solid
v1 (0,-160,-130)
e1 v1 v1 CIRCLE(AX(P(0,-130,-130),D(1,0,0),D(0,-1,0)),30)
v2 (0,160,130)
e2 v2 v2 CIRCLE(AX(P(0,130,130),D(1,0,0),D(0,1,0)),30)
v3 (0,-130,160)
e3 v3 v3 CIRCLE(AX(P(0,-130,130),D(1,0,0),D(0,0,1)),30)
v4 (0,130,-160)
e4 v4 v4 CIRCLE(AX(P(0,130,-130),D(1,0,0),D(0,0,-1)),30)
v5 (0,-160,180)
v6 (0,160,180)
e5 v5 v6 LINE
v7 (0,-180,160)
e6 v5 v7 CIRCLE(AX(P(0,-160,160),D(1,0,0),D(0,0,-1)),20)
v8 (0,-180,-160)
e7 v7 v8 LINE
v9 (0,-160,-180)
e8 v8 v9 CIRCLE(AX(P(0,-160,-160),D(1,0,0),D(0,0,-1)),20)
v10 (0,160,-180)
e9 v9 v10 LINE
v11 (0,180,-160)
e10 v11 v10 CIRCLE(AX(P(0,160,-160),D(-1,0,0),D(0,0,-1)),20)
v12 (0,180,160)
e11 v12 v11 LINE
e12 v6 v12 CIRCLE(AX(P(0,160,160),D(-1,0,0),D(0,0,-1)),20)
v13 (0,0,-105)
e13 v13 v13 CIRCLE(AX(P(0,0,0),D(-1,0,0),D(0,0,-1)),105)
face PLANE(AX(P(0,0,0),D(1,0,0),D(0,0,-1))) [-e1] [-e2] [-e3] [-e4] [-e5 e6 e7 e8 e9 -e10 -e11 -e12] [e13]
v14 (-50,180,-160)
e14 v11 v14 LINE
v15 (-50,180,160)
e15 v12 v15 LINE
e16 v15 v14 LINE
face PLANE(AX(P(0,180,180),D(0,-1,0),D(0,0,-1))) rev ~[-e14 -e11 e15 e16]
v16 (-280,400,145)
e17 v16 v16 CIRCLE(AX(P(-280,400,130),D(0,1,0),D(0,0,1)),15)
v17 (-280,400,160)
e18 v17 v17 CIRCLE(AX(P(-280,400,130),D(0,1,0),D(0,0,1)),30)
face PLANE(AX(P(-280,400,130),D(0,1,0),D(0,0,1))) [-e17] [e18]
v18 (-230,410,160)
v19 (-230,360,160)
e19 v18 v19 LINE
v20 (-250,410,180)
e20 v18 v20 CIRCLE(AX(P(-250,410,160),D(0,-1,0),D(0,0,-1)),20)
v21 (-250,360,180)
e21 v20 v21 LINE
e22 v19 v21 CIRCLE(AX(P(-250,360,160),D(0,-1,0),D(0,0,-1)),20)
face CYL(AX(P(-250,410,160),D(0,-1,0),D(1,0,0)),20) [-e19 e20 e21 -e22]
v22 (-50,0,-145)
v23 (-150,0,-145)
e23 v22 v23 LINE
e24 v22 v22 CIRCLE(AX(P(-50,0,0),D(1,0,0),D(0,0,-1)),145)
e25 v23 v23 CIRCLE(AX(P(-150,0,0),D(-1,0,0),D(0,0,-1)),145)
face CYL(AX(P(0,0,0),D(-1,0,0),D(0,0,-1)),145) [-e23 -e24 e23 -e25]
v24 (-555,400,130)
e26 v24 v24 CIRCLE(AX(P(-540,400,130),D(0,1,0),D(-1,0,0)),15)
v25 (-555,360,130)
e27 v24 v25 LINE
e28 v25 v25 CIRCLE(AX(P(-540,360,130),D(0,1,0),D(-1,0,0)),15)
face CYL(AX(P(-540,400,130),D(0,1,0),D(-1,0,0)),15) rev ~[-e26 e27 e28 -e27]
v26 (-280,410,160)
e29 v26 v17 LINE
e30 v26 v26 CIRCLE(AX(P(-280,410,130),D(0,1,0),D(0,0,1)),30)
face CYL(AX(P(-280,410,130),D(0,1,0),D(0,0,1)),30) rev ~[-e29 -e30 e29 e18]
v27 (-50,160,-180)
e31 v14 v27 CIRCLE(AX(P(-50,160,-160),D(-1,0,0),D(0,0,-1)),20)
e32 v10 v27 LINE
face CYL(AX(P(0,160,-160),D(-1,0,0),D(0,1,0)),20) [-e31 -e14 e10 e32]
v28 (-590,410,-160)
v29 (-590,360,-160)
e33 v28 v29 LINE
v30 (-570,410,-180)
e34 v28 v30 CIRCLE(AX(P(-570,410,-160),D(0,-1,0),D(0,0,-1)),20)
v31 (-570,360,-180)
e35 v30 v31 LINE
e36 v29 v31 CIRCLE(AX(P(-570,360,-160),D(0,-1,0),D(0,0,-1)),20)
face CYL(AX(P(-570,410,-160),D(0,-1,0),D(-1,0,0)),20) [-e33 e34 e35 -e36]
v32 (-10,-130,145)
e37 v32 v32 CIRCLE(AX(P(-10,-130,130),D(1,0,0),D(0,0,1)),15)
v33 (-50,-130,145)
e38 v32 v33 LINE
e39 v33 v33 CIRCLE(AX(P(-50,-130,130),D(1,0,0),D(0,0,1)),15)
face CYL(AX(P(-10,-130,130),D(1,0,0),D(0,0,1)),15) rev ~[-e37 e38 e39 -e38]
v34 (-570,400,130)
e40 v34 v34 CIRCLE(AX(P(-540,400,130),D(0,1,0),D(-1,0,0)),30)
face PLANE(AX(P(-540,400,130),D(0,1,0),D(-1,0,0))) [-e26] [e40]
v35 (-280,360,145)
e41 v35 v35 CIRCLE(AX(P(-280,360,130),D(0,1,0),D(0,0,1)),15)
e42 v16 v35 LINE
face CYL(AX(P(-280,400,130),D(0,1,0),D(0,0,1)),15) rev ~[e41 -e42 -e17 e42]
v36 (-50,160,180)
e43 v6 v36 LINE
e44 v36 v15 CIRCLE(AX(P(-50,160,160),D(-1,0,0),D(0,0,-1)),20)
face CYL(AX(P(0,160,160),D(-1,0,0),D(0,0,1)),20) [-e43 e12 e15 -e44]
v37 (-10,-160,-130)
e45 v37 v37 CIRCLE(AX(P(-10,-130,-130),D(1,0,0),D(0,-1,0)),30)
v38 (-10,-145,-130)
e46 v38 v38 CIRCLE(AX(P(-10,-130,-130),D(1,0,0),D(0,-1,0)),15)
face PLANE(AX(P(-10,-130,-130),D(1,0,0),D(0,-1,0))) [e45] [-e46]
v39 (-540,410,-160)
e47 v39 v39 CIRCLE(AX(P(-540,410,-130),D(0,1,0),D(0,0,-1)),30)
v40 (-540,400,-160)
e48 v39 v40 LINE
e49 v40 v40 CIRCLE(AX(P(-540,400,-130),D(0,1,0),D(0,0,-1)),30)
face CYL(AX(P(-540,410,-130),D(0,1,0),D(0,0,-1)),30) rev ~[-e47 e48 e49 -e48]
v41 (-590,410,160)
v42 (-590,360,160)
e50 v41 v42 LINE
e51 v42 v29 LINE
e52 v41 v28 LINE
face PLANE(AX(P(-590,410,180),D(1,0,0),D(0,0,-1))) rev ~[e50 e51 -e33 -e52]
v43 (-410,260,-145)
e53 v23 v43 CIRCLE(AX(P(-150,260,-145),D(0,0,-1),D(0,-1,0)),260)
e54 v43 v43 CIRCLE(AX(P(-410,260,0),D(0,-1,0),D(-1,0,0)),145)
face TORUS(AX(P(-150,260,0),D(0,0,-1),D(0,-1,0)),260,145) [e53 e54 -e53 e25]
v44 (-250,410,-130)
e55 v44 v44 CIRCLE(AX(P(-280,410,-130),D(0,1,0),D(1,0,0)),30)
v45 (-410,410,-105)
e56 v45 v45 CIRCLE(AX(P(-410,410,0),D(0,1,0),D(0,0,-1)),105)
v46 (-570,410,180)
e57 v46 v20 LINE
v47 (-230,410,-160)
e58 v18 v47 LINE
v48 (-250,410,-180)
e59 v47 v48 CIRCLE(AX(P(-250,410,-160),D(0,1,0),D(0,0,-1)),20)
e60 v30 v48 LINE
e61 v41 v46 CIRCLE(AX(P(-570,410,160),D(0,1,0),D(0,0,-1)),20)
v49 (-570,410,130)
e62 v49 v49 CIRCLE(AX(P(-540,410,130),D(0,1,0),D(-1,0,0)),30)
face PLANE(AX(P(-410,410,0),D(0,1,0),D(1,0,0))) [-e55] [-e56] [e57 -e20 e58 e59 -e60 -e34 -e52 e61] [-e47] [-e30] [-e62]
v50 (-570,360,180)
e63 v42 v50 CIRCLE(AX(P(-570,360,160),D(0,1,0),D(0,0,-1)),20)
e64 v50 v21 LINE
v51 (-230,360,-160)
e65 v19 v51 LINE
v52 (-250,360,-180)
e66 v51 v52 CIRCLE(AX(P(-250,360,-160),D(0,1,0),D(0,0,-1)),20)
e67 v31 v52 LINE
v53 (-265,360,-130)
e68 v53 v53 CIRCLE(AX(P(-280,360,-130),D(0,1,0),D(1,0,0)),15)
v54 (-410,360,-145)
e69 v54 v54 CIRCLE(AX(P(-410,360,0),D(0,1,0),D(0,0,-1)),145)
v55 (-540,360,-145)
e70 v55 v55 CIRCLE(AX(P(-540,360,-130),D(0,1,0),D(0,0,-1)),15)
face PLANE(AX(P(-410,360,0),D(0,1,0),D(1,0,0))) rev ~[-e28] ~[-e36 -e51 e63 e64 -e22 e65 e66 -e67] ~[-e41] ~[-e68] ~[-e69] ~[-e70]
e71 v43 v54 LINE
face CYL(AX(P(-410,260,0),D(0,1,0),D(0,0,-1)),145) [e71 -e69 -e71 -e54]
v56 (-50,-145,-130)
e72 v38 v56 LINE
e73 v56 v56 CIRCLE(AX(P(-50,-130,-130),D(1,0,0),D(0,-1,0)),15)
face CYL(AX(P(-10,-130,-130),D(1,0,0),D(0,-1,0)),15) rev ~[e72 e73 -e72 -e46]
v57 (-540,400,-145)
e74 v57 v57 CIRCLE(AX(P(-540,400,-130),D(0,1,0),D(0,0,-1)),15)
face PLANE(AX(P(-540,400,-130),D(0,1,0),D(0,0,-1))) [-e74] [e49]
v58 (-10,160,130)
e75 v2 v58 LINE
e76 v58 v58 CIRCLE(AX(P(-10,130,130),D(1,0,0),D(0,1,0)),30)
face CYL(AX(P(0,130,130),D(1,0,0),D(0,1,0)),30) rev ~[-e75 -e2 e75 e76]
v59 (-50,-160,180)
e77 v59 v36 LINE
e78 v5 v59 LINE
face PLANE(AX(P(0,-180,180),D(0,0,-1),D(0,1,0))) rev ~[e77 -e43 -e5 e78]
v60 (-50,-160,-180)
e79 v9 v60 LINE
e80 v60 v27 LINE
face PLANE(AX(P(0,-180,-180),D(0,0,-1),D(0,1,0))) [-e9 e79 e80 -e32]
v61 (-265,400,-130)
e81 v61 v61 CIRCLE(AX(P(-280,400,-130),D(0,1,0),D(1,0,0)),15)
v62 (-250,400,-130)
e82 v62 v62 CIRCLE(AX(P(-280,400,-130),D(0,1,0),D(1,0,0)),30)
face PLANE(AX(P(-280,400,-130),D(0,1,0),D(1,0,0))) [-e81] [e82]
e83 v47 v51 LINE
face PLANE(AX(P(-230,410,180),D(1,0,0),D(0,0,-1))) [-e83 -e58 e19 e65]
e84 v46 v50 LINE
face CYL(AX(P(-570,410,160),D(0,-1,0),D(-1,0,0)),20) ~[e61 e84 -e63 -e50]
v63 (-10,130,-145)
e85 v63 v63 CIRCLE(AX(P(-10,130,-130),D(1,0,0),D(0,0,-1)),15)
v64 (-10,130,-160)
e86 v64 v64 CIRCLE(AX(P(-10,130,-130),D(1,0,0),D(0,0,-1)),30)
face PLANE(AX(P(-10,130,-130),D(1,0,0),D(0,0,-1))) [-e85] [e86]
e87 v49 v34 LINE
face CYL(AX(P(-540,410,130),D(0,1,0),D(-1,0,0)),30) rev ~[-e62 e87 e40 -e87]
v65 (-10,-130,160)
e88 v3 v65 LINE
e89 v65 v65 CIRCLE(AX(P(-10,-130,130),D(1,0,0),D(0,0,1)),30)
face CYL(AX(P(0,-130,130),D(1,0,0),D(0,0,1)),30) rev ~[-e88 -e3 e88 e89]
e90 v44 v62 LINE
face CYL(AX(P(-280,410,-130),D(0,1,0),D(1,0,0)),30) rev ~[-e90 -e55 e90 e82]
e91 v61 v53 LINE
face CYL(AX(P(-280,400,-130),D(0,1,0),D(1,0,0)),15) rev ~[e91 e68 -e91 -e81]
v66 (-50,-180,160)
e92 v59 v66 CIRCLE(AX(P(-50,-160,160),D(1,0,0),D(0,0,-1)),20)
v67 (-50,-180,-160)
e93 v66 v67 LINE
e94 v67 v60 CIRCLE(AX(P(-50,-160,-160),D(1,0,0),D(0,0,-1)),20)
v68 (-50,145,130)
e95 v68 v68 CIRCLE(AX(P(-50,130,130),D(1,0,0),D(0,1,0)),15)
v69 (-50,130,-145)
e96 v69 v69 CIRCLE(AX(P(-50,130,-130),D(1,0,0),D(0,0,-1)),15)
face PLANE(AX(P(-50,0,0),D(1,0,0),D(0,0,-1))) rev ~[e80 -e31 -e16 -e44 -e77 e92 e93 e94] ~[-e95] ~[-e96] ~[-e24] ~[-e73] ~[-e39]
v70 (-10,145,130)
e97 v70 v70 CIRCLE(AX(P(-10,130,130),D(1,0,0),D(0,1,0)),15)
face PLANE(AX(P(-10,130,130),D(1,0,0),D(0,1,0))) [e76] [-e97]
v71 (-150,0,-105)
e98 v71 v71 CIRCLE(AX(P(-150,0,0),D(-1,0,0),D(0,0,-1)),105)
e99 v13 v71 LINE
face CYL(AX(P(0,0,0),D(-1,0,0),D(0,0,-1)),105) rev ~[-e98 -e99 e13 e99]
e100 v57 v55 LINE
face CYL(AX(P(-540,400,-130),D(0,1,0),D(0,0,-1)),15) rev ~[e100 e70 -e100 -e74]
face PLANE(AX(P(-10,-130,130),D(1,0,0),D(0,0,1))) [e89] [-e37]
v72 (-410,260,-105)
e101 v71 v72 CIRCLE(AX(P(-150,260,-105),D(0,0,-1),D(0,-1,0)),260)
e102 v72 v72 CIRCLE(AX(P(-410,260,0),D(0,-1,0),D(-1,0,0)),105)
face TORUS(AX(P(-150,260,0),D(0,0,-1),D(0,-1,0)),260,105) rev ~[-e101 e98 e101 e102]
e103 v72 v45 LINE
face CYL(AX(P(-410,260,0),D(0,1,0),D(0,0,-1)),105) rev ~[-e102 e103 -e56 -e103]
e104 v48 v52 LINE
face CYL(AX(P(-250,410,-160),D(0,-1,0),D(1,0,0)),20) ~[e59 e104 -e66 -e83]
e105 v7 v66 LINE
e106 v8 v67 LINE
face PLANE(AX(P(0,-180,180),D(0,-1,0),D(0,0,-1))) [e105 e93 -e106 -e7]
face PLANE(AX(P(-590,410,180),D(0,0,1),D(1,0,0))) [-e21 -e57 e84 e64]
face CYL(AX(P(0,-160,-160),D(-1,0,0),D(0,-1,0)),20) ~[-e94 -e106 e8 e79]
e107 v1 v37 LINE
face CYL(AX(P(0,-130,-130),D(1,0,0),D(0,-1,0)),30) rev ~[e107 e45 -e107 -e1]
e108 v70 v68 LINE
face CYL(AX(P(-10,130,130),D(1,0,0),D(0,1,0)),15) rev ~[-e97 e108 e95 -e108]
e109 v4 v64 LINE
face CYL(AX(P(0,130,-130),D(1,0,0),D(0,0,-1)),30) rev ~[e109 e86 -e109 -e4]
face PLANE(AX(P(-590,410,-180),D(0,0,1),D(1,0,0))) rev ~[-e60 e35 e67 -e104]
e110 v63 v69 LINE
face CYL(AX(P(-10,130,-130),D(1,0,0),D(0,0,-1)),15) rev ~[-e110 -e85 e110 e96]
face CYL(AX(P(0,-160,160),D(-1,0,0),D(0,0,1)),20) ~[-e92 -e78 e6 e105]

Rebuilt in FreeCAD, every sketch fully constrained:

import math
import FreeCAD as App
import Part
import Sketcher
from FreeCAD import Vector


def edges_at(feature, points):
    """Names of the edges that pass closest to the given points."""
    edges = feature.Shape.Edges
    near = lambda p: min(range(len(edges)), key=lambda i: edges[i].distToShape(Part.Vertex(*p))[0])
    return sorted({f"Edge{near(p) + 1}" for p in points})


def add_polygon(sketch, points):
    """Adds a closed chain of lines whose ends are joined by coincident constraints."""
    first, n = sketch.GeometryCount, len(points)
    for a, b in zip(points, points[1:] + points[:1]):
        sketch.addGeometry(Part.LineSegment(App.Vector(*a, 0), App.Vector(*b, 0)), False)
    for i in range(n):
        sketch.addConstraint(Sketcher.Constraint("Coincident", first + i, 2, first + (i + 1) % n, 1))

doc = App.newDocument("Part")
body = doc.addObject("PartDesign::Body", "Body")

# Sketch on YZ plane
sketch1 = doc.addObject("Sketcher::SketchObject", "Sketch")
body.addObject(sketch1)
sketch1.AttachmentSupport = (doc.YZ_Plane, [""])
sketch1.MapMode = "FlatFace"
sketch1.addGeometry([
    Part.Circle(Vector(0, 0, 0), Vector(0, 0, 1), 145),
    Part.Circle(Vector(0, 0, 0), Vector(0, 0, 1), 105),
], False)
sketch1.addConstraint([
    Sketcher.Constraint("Coincident", 0, 3, -1, 1),
    Sketcher.Constraint("Coincident", 1, 3, -1, 1),
    Sketcher.Constraint("Diameter", 0, 290.0),
    Sketcher.Constraint("Diameter", 1, 210.0),
])

# Sketch on XY plane
sketch2 = doc.addObject("Sketcher::SketchObject", "Sketch001")
body.addObject(sketch2)
sketch2.AttachmentSupport = (doc.XY_Plane, [""])
sketch2.MapMode = "FlatFace"
sketch2.addGeometry([
    Part.LineSegment(Vector(0, 0, 0), Vector(-150, 0, 0)),
    Part.ArcOfCircle(Part.Circle(Vector(-150, 260, 0), Vector(0, 0, 1), 260), math.radians(180), math.radians(270)),
    Part.LineSegment(Vector(-410, 260, 0), Vector(-410, 410, 0)),
], False)
sketch2.addConstraint([
    Sketcher.Constraint("Tangent", 0, 2, 1, 2),
    Sketcher.Constraint("Tangent", 1, 1, 2, 1),
    Sketcher.Constraint("Horizontal", 0),
    Sketcher.Constraint("Vertical", 2),
    Sketcher.Constraint("Coincident", 0, 1, -1, 1),
    Sketcher.Constraint("Equal", 0, 2),
    Sketcher.Constraint("Radius", 1, 260.0),
    Sketcher.Constraint("DistanceX", 0, 2, 0, 1, 150.0),
])
doc.recompute()

additivepipe = doc.addObject("PartDesign::AdditivePipe", "AdditivePipe")
body.addObject(additivepipe)
additivepipe.Profile = sketch1
additivepipe.Spine = (sketch2, ["Edge1", "Edge2", "Edge3"])

# Sketch on YZ plane
sketch3 = doc.addObject("Sketcher::SketchObject", "Sketch002")
body.addObject(sketch3)
sketch3.AttachmentSupport = (doc.YZ_Plane, [""])
sketch3.MapMode = "FlatFace"
add_polygon(sketch3, [(180, 180), (-180, 180), (-180, -180), (180, -180)])  # lines 0-3
sketch3.addGeometry(Part.Circle(Vector(0, 0, 0), Vector(0, 0, 1), 145), False)  # 4
sketch3.addConstraint([
    Sketcher.Constraint("Horizontal", 0),
    Sketcher.Constraint("Vertical", 1),
    Sketcher.Constraint("Horizontal", 2),
    Sketcher.Constraint("Vertical", 3),
    Sketcher.Constraint("Coincident", 4, 3, -1, 1),
    Sketcher.Constraint("Symmetric", 0, 2, 2, 2, -1, 1),
    Sketcher.Constraint("Equal", 2, 1),
    Sketcher.Constraint("Diameter", 4, 290.0),
    Sketcher.Constraint("DistanceX", 0, 2, 0, 1, 360.0),
])
pad1 = doc.addObject("PartDesign::Pad", "Pad")
body.addObject(pad1)
pad1.Profile = sketch3
pad1.Length = 50
pad1.Reversed = True
doc.recompute()

fillet = doc.addObject("PartDesign::Fillet", "Fillet")
body.addObject(fillet)
fillet.Base = (pad1, edges_at(pad1, [
    (-25, 180, -180),
    (-25, -180, -180),
    (-25, -180, 180),
    (-25, 180, 180),
]))
fillet.Radius = 20

# Sketch on XZ plane
sketch4 = doc.addObject("Sketcher::SketchObject", "Sketch003")
body.addObject(sketch4)
sketch4.AttachmentSupport = (doc.XZ_Plane, [""])
sketch4.MapMode = "FlatFace"
sketch4.AttachmentOffset = App.Placement(Vector(0, 0, -410), App.Rotation())
add_polygon(sketch4, [(-590, -180), (-590, 180), (-230, 180), (-230, -180)])  # lines 0-3
sketch4.addGeometry(Part.Circle(Vector(-410, 0, 0), Vector(0, 0, 1), 145), False)  # 4
sketch4.addConstraint([
    Sketcher.Constraint("Vertical", 0),
    Sketcher.Constraint("Horizontal", 1),
    Sketcher.Constraint("Vertical", 2),
    Sketcher.Constraint("Horizontal", 3),
    Sketcher.Constraint("PointOnObject", 4, 3, -1),
    Sketcher.Constraint("Equal", 3, 0),
    Sketcher.Constraint("Diameter", 4, 290.0),
    Sketcher.Constraint("DistanceX", 1, 1, 1, 2, 360.0),
    Sketcher.Constraint("DistanceX", 4, 3, -1, 1, 410.0),
    Sketcher.Constraint("DistanceX", 0, 2, -1, 1, 590.0),
    Sketcher.Constraint("DistanceY", -1, 1, 0, 2, 180.0),
])
pad2 = doc.addObject("PartDesign::Pad", "Pad001")
body.addObject(pad2)
pad2.Profile = sketch4
pad2.Length = 50
doc.recompute()

fillet2 = doc.addObject("PartDesign::Fillet", "Fillet001")
body.addObject(fillet2)
fillet2.Base = (pad2, edges_at(pad2, [
    (-590, 385, 180),
    (-590, 385, -180),
    (-230, 385, -180),
    (-230, 385, 180),
]))
fillet2.Radius = 20

# Sketch on XZ plane
sketch5 = doc.addObject("Sketcher::SketchObject", "Sketch004")
body.addObject(sketch5)
sketch5.AttachmentSupport = (doc.XZ_Plane, [""])
sketch5.MapMode = "FlatFace"
sketch5.AttachmentOffset = App.Placement(Vector(0, 0, -410), App.Rotation())
sketch5.addGeometry(Part.Circle(Vector(-280, -130, 0), Vector(0, 0, 1), 30), False)
sketch5.addConstraint([
    Sketcher.Constraint("Diameter", 0, 60.0),
    Sketcher.Constraint("DistanceX", 0, 3, -1, 1, 280.0),
    Sketcher.Constraint("DistanceY", 0, 3, -1, 1, 130.0),
])
pocket1 = doc.addObject("PartDesign::Pocket", "Pocket")
body.addObject(pocket1)
pocket1.Profile = sketch5
pocket1.Length = 10
pocket1.Reversed = True

# Sketch on XZ plane
sketch6 = doc.addObject("Sketcher::SketchObject", "Sketch005")
body.addObject(sketch6)
sketch6.AttachmentSupport = (doc.XZ_Plane, [""])
sketch6.MapMode = "FlatFace"
sketch6.AttachmentOffset = App.Placement(Vector(0, 0, -400), App.Rotation())
sketch6.addGeometry(Part.Circle(Vector(-280, -130, 0), Vector(0, 0, 1), 15), False)
sketch6.addConstraint([
    Sketcher.Constraint("Diameter", 0, 30.0),
    Sketcher.Constraint("DistanceX", 0, 3, -1, 1, 280.0),
    Sketcher.Constraint("DistanceY", 0, 3, -1, 1, 130.0),
])
pocket2 = doc.addObject("PartDesign::Pocket", "Pocket001")
body.addObject(pocket2)
pocket2.Profile = sketch6
pocket2.Length = 40
pocket2.Reversed = True
doc.recompute()

datumline = doc.addObject("PartDesign::Line", "DatumLine")
body.addObject(datumline)
datumline.Placement = App.Placement(Vector(-410, 0, 0), App.Rotation(Vector(0, 0, 1), Vector(0, 1, 0)))
polarpattern = doc.addObject("PartDesign::PolarPattern", "PolarPattern")
body.addObject(polarpattern)
polarpattern.Originals = [pocket1, pocket2]
polarpattern.Axis = (datumline, [""])
polarpattern.Angle = 360
polarpattern.Occurrences = 4
body.Tip = polarpattern

# Sketch on YZ plane
sketch7 = doc.addObject("Sketcher::SketchObject", "Sketch006")
body.addObject(sketch7)
sketch7.AttachmentSupport = (doc.YZ_Plane, [""])
sketch7.MapMode = "FlatFace"
sketch7.addGeometry(Part.Circle(Vector(130, -130, 0), Vector(0, 0, 1), 30), False)
sketch7.addConstraint([
    Sketcher.Constraint("Diameter", 0, 60.0),
    Sketcher.Constraint("DistanceX", -1, 1, 0, 3, 130.0),
    Sketcher.Constraint("DistanceY", 0, 3, -1, 1, 130.0),
])
pocket3 = doc.addObject("PartDesign::Pocket", "Pocket002")
body.addObject(pocket3)
pocket3.Profile = sketch7
pocket3.Length = 10

# Sketch on YZ plane
sketch8 = doc.addObject("Sketcher::SketchObject", "Sketch007")
body.addObject(sketch8)
sketch8.AttachmentSupport = (doc.YZ_Plane, [""])
sketch8.MapMode = "FlatFace"
sketch8.AttachmentOffset = App.Placement(Vector(0, 0, -10), App.Rotation())
sketch8.addGeometry(Part.Circle(Vector(130, -130, 0), Vector(0, 0, 1), 15), False)
sketch8.addConstraint([
    Sketcher.Constraint("Diameter", 0, 30.0),
    Sketcher.Constraint("DistanceX", -1, 1, 0, 3, 130.0),
    Sketcher.Constraint("DistanceY", 0, 3, -1, 1, 130.0),
])
pocket4 = doc.addObject("PartDesign::Pocket", "Pocket003")
body.addObject(pocket4)
pocket4.Profile = sketch8
pocket4.Length = 40
doc.recompute()

polarpattern2 = doc.addObject("PartDesign::PolarPattern", "PolarPattern001")
body.addObject(polarpattern2)
polarpattern2.Originals = [pocket3, pocket4]
polarpattern2.Axis = (doc.X_Axis, [""])
polarpattern2.Angle = 360
polarpattern2.Occurrences = 4
body.Tip = polarpattern2

doc.recompute()
